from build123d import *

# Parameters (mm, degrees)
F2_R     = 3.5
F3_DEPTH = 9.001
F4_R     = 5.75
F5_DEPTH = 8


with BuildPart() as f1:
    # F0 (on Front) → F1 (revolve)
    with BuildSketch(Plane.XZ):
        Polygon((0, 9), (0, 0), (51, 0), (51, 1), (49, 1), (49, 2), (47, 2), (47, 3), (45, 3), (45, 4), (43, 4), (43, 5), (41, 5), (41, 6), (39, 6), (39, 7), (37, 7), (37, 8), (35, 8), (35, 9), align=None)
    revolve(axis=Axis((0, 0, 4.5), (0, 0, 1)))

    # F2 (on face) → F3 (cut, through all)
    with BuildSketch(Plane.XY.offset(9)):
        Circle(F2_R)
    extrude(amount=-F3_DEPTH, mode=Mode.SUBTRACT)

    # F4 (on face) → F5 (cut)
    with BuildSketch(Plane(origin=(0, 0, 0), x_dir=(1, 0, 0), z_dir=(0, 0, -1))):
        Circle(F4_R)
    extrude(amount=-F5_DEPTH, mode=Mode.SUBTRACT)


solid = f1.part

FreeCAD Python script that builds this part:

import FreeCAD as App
import Part
import Sketcher
from FreeCAD import Vector
Q = App.Units.Quantity


def add_polygon(sketch, points):
    """Adds a closed chain of lines whose ends are joined by coincident constraints."""
    first, n = sketch.GeometryCount, len(points)
    for a, b in zip(points, points[1:] + points[:1]):
        sketch.addGeometry(Part.LineSegment(App.Vector(*a, 0), App.Vector(*b, 0)), False)
    for i in range(n):
        sketch.addConstraint(Sketcher.Constraint("Coincident", first + i, 2, first + (i + 1) % n, 1))

doc = App.newDocument("Part")
body = doc.addObject("PartDesign::Body", "Body")

# Sketch on XZ plane
sketch1 = body.newObject("Sketcher::SketchObject", "Sketch")
sketch1.AttachmentSupport = (doc.getObject("XZ_Plane"), [""])
sketch1.MapMode = "FlatFace"
add_polygon(sketch1, [(0, 9), (0, 0), (51, 0), (51, 1), (49, 1), (49, 2), (47, 2), (47, 3), (45, 3), (45, 4), (43, 4), (43, 5), (41, 5), (41, 6), (39, 6), (39, 7), (37, 7), (37, 8), (35, 8), (35, 9)])  # lines 0-19
sketch1.addConstraint([
    Sketcher.Constraint("Vertical", 0),
    Sketcher.Constraint("Horizontal", 1),
    Sketcher.Constraint("Vertical", 2),
    Sketcher.Constraint("Horizontal", 3),
    Sketcher.Constraint("Vertical", 4),
    Sketcher.Constraint("Horizontal", 5),
    Sketcher.Constraint("Vertical", 6),
    Sketcher.Constraint("Horizontal", 7),
    Sketcher.Constraint("Vertical", 8),
    Sketcher.Constraint("Horizontal", 9),
    Sketcher.Constraint("Vertical", 10),
    Sketcher.Constraint("Horizontal", 11),
    Sketcher.Constraint("Vertical", 12),
    Sketcher.Constraint("Horizontal", 13),
    Sketcher.Constraint("Vertical", 14),
    Sketcher.Constraint("Horizontal", 15),
    Sketcher.Constraint("Vertical", 16),
    Sketcher.Constraint("Horizontal", 17),
    Sketcher.Constraint("Vertical", 18),
    Sketcher.Constraint("Horizontal", 19),
    Sketcher.Constraint("Coincident", 0, 2, -1, 1),
    Sketcher.Constraint("Equal", 3, 5),
    Sketcher.Constraint("Equal", 5, 7),
    Sketcher.Constraint("Equal", 7, 9),
    Sketcher.Constraint("Equal", 9, 11),
    Sketcher.Constraint("Equal", 11, 13),
    Sketcher.Constraint("Equal", 13, 15),
    Sketcher.Constraint("Equal", 15, 17),
    Sketcher.Constraint("Equal", 2, 4),
    Sketcher.Constraint("Equal", 4, 6),
    Sketcher.Constraint("Equal", 6, 8),
    Sketcher.Constraint("Equal", 8, 10),
    Sketcher.Constraint("Equal", 10, 12),
    Sketcher.Constraint("Equal", 12, 14),
    Sketcher.Constraint("Equal", 14, 16),
    Sketcher.Constraint("Equal", 16, 18),
    Sketcher.Constraint("DistanceX", 1, 1, 1, 2, Q("51 mm")),
    Sketcher.Constraint("DistanceX", 3, 2, 3, 1, Q("2 mm")),
    Sketcher.Constraint("DistanceY", 0, 2, 0, 1, Q("9 mm")),
])
revolution = body.newObject("PartDesign::Revolution", "Revolution")
revolution.Profile = sketch1
revolution.ReferenceAxis = (sketch1, ["V_Axis"])
revolution.Angle = 360

# Sketch on XY plane
sketch2 = body.newObject("Sketcher::SketchObject", "Sketch001")
sketch2.AttachmentSupport = (doc.getObject("XY_Plane"), [""])
sketch2.MapMode = "FlatFace"
sketch2.AttachmentOffset = App.Placement(Vector(0, 0, 9), App.Rotation())
sketch2.addGeometry(Part.Circle(Vector(0, 0, 0), Vector(0, 0, 1), 3.5), False)
sketch2.addConstraint([
    Sketcher.Constraint("Coincident", 0, 3, -1, 1),
    Sketcher.Constraint("Diameter", 0, Q("7 mm")),
])
pocket1 = body.newObject("PartDesign::Pocket", "Pocket")
pocket1.Profile = sketch2
pocket1.Type = "ThroughAll"

# Sketch on XY plane
sketch3 = body.newObject("Sketcher::SketchObject", "Sketch002")
sketch3.AttachmentSupport = (doc.getObject("XY_Plane"), [""])
sketch3.MapMode = "FlatFace"
sketch3.addGeometry(Part.Circle(Vector(0, 0, 0), Vector(0, 0, 1), 6), False)
sketch3.addConstraint([
    Sketcher.Constraint("Coincident", 0, 3, -1, 1),
    Sketcher.Constraint("Diameter", 0, Q("11.5 mm")),
])
pocket2 = body.newObject("PartDesign::Pocket", "Pocket001")
pocket2.Profile = sketch3
pocket2.Length = 8
pocket2.Reversed = True

doc.recompute()
